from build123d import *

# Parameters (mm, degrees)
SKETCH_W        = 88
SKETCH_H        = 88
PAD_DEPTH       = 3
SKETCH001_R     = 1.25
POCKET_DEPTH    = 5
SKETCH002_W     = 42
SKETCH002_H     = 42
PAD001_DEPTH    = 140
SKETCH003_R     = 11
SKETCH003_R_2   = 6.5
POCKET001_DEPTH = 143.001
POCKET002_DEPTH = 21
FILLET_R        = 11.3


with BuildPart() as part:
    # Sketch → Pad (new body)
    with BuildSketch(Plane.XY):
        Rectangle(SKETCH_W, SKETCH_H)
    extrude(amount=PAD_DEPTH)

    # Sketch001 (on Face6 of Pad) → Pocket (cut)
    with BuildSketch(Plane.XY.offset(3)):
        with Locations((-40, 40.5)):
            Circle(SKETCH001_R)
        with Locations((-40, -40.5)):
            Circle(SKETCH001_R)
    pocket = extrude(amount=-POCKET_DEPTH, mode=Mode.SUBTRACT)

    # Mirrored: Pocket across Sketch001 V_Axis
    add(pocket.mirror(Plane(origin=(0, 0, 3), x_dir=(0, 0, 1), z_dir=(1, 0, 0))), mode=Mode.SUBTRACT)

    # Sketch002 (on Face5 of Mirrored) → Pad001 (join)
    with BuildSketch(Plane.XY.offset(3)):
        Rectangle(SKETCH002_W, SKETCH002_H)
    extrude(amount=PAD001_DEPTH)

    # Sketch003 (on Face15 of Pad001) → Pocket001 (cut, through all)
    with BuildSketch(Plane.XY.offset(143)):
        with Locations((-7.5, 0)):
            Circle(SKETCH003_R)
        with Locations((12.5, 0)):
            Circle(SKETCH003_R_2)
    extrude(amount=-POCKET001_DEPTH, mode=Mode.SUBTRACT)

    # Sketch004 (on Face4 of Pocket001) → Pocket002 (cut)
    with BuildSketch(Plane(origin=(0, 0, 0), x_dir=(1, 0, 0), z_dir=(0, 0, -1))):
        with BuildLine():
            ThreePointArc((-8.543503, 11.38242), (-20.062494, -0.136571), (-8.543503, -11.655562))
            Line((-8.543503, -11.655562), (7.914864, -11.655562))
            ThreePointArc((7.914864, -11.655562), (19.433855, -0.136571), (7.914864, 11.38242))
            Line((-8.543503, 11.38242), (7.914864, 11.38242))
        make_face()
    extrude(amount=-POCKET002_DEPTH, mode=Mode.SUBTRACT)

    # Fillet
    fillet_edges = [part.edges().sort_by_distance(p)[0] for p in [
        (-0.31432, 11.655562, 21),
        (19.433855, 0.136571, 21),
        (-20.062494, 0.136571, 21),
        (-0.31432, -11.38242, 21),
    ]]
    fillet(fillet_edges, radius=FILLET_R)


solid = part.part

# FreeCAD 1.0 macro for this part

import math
import FreeCAD as App
import Part
import Sketcher


def edges_at(feature, points):
    """Names of the edges that pass closest to the given points."""
    edges = feature.Shape.Edges
    near = lambda p: min(range(len(edges)), key=lambda i: edges[i].distToShape(Part.Vertex(*p))[0])
    return sorted({f"Edge{near(p) + 1}" for p in points})


def add_polygon(sketch, points):
    """Adds a closed chain of lines whose ends are joined by coincident constraints."""
    first, n = sketch.GeometryCount, len(points)
    for a, b in zip(points, points[1:] + points[:1]):
        sketch.addGeometry(Part.LineSegment(App.Vector(*a, 0), App.Vector(*b, 0)), False)
    for i in range(n):
        sketch.addConstraint(Sketcher.Constraint("Coincident", first + i, 2, first + (i + 1) % n, 1))

doc = App.newDocument("Part")
params = doc.addObject("Spreadsheet::Sheet", "Params")
for row, (alias, value) in enumerate([
    ("sketch1_width", "88 mm"),
    ("pad1_length", "3 mm"),
    ("sketch2_diameter", "2.5 mm"),
    ("pocket1_length", "5 mm"),
    ("sketch3_width", "42 mm"),
    ("pad2_length", "140 mm"),
    ("sketch4_diameter", "22 mm"),
    ("sketch4_diameter2", "13 mm"),
    ("pocket3_length", "21 mm"),
    ("fillet_radius", "11.3 mm"),
], start=1):
    params.set(f"A{row}", alias)
    params.set(f"B{row}", "=" + value)
    params.setAlias(f"B{row}", alias)

body = doc.addObject("PartDesign::Body", "Body")

# Sketch on XY plane
sketch1 = body.newObject("Sketcher::SketchObject", "Sketch")
sketch1.AttachmentSupport = (doc.getObject("XY_Plane"), [""])
sketch1.MapMode = "FlatFace"
add_polygon(sketch1, [(-44, 44), (-44, -44), (44, -44), (44, 44)])  # lines 0-3
sketch1.addConstraint([
    Sketcher.Constraint("Vertical", 0),
    Sketcher.Constraint("Horizontal", 1),
    Sketcher.Constraint("Vertical", 2),
    Sketcher.Constraint("Horizontal", 3),
    Sketcher.Constraint("Symmetric", 0, 2, 2, 2, -1, 1),
    Sketcher.Constraint("Equal", 3, 0),
    Sketcher.Constraint("DistanceX", 1, 1, 1, 2, 88.0),
])
sketch1.setExpression("Constraints[10]", "Params.sketch1_width")
pad1 = body.newObject("PartDesign::Pad", "Pad")
pad1.Profile = sketch1
pad1.setExpression("Length", "Params.pad1_length")

# Sketch on XY plane
sketch2 = body.newObject("Sketcher::SketchObject", "Sketch001")
sketch2.AttachmentSupport = (doc.getObject("XY_Plane"), [""])
sketch2.MapMode = "FlatFace"
sketch2.AttachmentOffset = App.Placement(App.Vector(0, 0, 3), App.Rotation())
sketch2.addGeometry([
    Part.Circle(App.Vector(-40, 40.5, 0), App.Vector(0, 0, 1), 1.2),
    Part.Circle(App.Vector(-40, -40.5, 0), App.Vector(0, 0, 1), 1.2),
], False)
sketch2.addConstraint([
    Sketcher.Constraint("Equal", 0, 1),
    Sketcher.Constraint("Symmetric", 0, 3, 1, 3, -1),
    Sketcher.Constraint("Diameter", 0, 2.5),
    Sketcher.Constraint("DistanceX", 0, 3, -1, 1, 40.0),
    Sketcher.Constraint("DistanceY", 1, 3, 0, 3, 81.0),
])
sketch2.setExpression("Constraints[2]", "Params.sketch2_diameter")
pocket1 = body.newObject("PartDesign::Pocket", "Pocket")
pocket1.Profile = sketch2
pocket1.setExpression("Length", "Params.pocket1_length")
doc.recompute()

mirrored = body.newObject("PartDesign::Mirrored", "Mirrored")
mirrored.Originals = [pocket1]
mirrored.MirrorPlane = (doc.getObject("YZ_Plane"), [""])
body.Tip = mirrored

# Sketch on XY plane
sketch3 = body.newObject("Sketcher::SketchObject", "Sketch002")
sketch3.AttachmentSupport = (doc.getObject("XY_Plane"), [""])
sketch3.MapMode = "FlatFace"
sketch3.AttachmentOffset = App.Placement(App.Vector(0, 0, 3), App.Rotation())
add_polygon(sketch3, [(-21, 21), (-21, -21), (21, -21), (21, 21)])  # lines 0-3
sketch3.addConstraint([
    Sketcher.Constraint("Vertical", 0),
    Sketcher.Constraint("Horizontal", 1),
    Sketcher.Constraint("Vertical", 2),
    Sketcher.Constraint("Horizontal", 3),
    Sketcher.Constraint("Symmetric", 0, 2, 2, 2, -1, 1),
    Sketcher.Constraint("Equal", 3, 0),
    Sketcher.Constraint("DistanceX", 1, 1, 1, 2, 42.0),
])
sketch3.setExpression("Constraints[10]", "Params.sketch3_width")
pad2 = body.newObject("PartDesign::Pad", "Pad001")
pad2.Profile = sketch3
pad2.setExpression("Length", "Params.pad2_length")

# Sketch on XY plane
sketch4 = body.newObject("Sketcher::SketchObject", "Sketch003")
sketch4.AttachmentSupport = (doc.getObject("XY_Plane"), [""])
sketch4.MapMode = "FlatFace"
sketch4.AttachmentOffset = App.Placement(App.Vector(0, 0, 143), App.Rotation())
sketch4.addGeometry([
    Part.Circle(App.Vector(-8, 0, 0), App.Vector(0, 0, 1), 11),
    Part.Circle(App.Vector(12, 0, 0), App.Vector(0, 0, 1), 6),
], False)
sketch4.addConstraint([
    Sketcher.Constraint("PointOnObject", 0, 3, -1),
    Sketcher.Constraint("PointOnObject", 1, 3, -1),
    Sketcher.Constraint("Diameter", 0, 22.0),
    Sketcher.Constraint("Diameter", 1, 13.0),
    Sketcher.Constraint("DistanceX", 0, 3, 1, 3, 20.0),
    Sketcher.Constraint("DistanceX", 0, 3, -1, 1, 7.5),
])
sketch4.setExpression("Constraints[2]", "Params.sketch4_diameter")
sketch4.setExpression("Constraints[3]", "Params.sketch4_diameter2")
pocket2 = body.newObject("PartDesign::Pocket", "Pocket001")
pocket2.Profile = sketch4
pocket2.Type = "ThroughAll"

# Sketch on XY plane
sketch5 = body.newObject("Sketcher::SketchObject", "Sketch004")
sketch5.AttachmentSupport = (doc.getObject("XY_Plane"), [""])
sketch5.MapMode = "FlatFace"
sketch5.addGeometry([
    Part.ArcOfCircle(Part.Circle(App.Vector(-9, 0, 0), App.Vector(0, 0, 1), 12), math.radians(90), math.radians(270)),
    Part.LineSegment(App.Vector(-9, 12, 0), App.Vector(8, 12, 0)),
    Part.ArcOfCircle(Part.Circle(App.Vector(8, 0, 0), App.Vector(0, 0, 1), 12), math.radians(-90), math.radians(90)),
    Part.LineSegment(App.Vector(8, -11, 0), App.Vector(-9, -11, 0)),
], False)
sketch5.addConstraint([
    Sketcher.Constraint("Tangent", 0, 1, 1, 1),
    Sketcher.Constraint("Tangent", 1, 2, 2, 2),
    Sketcher.Constraint("Tangent", 2, 1, 3, 1),
    Sketcher.Constraint("Tangent", 3, 2, 0, 2),
    Sketcher.Constraint("Horizontal", 1),
    Sketcher.Constraint("Horizontal", 3),
    Sketcher.Constraint("Radius", 0, 11.518991),
    Sketcher.Constraint("DistanceX", 1, 1, 1, 2, 16.458367),
    Sketcher.Constraint("DistanceY", -1, 1, 0, 3, 0.136571),
    Sketcher.Constraint("DistanceX", 0, 3, -1, 1, 8.543503),
])
pocket3 = body.newObject("PartDesign::Pocket", "Pocket002")
pocket3.Profile = sketch5
pocket3.setExpression("Length", "Params.pocket3_length")
pocket3.Reversed = True
doc.recompute()

fillet = body.newObject("PartDesign::Fillet", "Fillet")
fillet.Base = (pocket3, edges_at(pocket3, [
    (-0.314, 11.656, 21),
    (19.434, 0.137, 21),
    (-20.062, 0.137, 21),
    (-0.314, -11.382, 21),
]))
fillet.setExpression("Radius", "Params.fillet_radius")

doc.recompute()
